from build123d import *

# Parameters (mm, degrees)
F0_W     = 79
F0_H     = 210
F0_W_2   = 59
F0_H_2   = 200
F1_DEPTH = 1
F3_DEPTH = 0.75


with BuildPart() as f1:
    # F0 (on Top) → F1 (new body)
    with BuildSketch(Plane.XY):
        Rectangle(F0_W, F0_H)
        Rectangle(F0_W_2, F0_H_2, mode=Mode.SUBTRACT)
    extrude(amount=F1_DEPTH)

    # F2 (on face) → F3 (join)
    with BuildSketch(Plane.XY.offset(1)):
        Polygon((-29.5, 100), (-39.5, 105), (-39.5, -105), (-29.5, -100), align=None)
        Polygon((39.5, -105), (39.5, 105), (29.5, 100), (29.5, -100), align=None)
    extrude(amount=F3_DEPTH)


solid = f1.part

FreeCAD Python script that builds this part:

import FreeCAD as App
import Part
import Sketcher
Q = App.Units.Quantity

doc = App.newDocument("Part")
params = doc.addObject("Spreadsheet::Sheet", "Params")
for row, (alias, value) in enumerate([
    ("sketch1_width", "79 mm"),
    ("sketch1_width2", "59 mm"),
    ("sketch1_height", "210 mm"),
    ("sketch1_height2", "200 mm"),
    ("pad1_length", "1 mm"),
    ("sketch2_height", "210 mm"),
    ("sketch2_height2", "200 mm"),
    ("pad2_length", "0.75 mm"),
], start=1):
    params.set(f"A{row}", alias)
    params.set(f"B{row}", "=" + value)
    params.setAlias(f"B{row}", alias)

body = doc.addObject("PartDesign::Body", "Body")

sketch1 = body.newObject("Sketcher::SketchObject", "Sketch")
sketch1.AttachmentSupport = (doc.getObject("XY_Plane"), [""])
sketch1.MapMode = "FlatFace"
sketch1.addGeometry(Part.LineSegment(App.Vector(-39.5, 105, 0), App.Vector(-39.5, -105, 0)), False)
sketch1.addGeometry(Part.LineSegment(App.Vector(-39.5, -105, 0), App.Vector(39.5, -105, 0)), False)
sketch1.addGeometry(Part.LineSegment(App.Vector(39.5, -105, 0), App.Vector(39.5, 105, 0)), False)
sketch1.addGeometry(Part.LineSegment(App.Vector(39.5, 105, 0), App.Vector(-39.5, 105, 0)), False)
sketch1.addGeometry(Part.LineSegment(App.Vector(29.5, -100, 0), App.Vector(-29.5, -100, 0)), False)
sketch1.addGeometry(Part.LineSegment(App.Vector(-29.5, -100, 0), App.Vector(-29.5, 100, 0)), False)
sketch1.addGeometry(Part.LineSegment(App.Vector(-29.5, 100, 0), App.Vector(29.5, 100, 0)), False)
sketch1.addGeometry(Part.LineSegment(App.Vector(29.5, 100, 0), App.Vector(29.5, -100, 0)), False)
sketch1.addConstraint(Sketcher.Constraint("Coincident", 0, 2, 1, 1))
sketch1.addConstraint(Sketcher.Constraint("Coincident", 1, 2, 2, 1))
sketch1.addConstraint(Sketcher.Constraint("Coincident", 2, 2, 3, 1))
sketch1.addConstraint(Sketcher.Constraint("Coincident", 3, 2, 0, 1))
sketch1.addConstraint(Sketcher.Constraint("Coincident", 4, 2, 5, 1))
sketch1.addConstraint(Sketcher.Constraint("Coincident", 5, 2, 6, 1))
sketch1.addConstraint(Sketcher.Constraint("Coincident", 6, 2, 7, 1))
sketch1.addConstraint(Sketcher.Constraint("Coincident", 7, 2, 4, 1))
sketch1.addConstraint(Sketcher.Constraint("Vertical", 0))
sketch1.addConstraint(Sketcher.Constraint("Horizontal", 1))
sketch1.addConstraint(Sketcher.Constraint("Vertical", 2))
sketch1.addConstraint(Sketcher.Constraint("Horizontal", 3))
sketch1.addConstraint(Sketcher.Constraint("Horizontal", 4))
sketch1.addConstraint(Sketcher.Constraint("Vertical", 5))
sketch1.addConstraint(Sketcher.Constraint("Horizontal", 6))
sketch1.addConstraint(Sketcher.Constraint("Vertical", 7))
sketch1.addConstraint(Sketcher.Constraint("Symmetric", 0, 2, 2, 2, -1, 1))
sketch1.addConstraint(Sketcher.Constraint("Symmetric", 4, 2, 6, 2, -1, 1))
sketch1.addConstraint(Sketcher.Constraint("DistanceX", 1, 1, 1, 2, Q("79 mm")))
sketch1.addConstraint(Sketcher.Constraint("DistanceX", 4, 2, 4, 1, Q("59 mm")))
sketch1.addConstraint(Sketcher.Constraint("DistanceY", 0, 2, 0, 1, Q("210 mm")))
sketch1.addConstraint(Sketcher.Constraint("DistanceY", 5, 1, 5, 2, Q("200 mm")))
sketch1.setExpression("Constraints[18]", "Params.sketch1_width")
sketch1.setExpression("Constraints[19]", "Params.sketch1_width2")
sketch1.setExpression("Constraints[20]", "Params.sketch1_height")
sketch1.setExpression("Constraints[21]", "Params.sketch1_height2")
pad1 = body.newObject("PartDesign::Pad", "Pad")
pad1.Profile = sketch1
pad1.setExpression("Length", "Params.pad1_length")

sketch2 = body.newObject("Sketcher::SketchObject", "Sketch001")
sketch2.AttachmentSupport = (doc.getObject("XY_Plane"), [""])
sketch2.MapMode = "FlatFace"
sketch2.AttachmentOffset = App.Placement(App.Vector(0, 0, 1), App.Rotation())
sketch2.addGeometry(Part.LineSegment(App.Vector(-29.5, 100, 0), App.Vector(-39.5, 105, 0)), False)
sketch2.addGeometry(Part.LineSegment(App.Vector(-39.5, 105, 0), App.Vector(-39.5, -105, 0)), False)
sketch2.addGeometry(Part.LineSegment(App.Vector(-39.5, -105, 0), App.Vector(-29.5, -100, 0)), False)
sketch2.addGeometry(Part.LineSegment(App.Vector(-29.5, -100, 0), App.Vector(-29.5, 100, 0)), False)
sketch2.addGeometry(Part.LineSegment(App.Vector(39.5, -105, 0), App.Vector(39.5, 105, 0)), False)
sketch2.addGeometry(Part.LineSegment(App.Vector(39.5, 105, 0), App.Vector(29.5, 100, 0)), False)
sketch2.addGeometry(Part.LineSegment(App.Vector(29.5, 100, 0), App.Vector(29.5, -100, 0)), False)
sketch2.addGeometry(Part.LineSegment(App.Vector(29.5, -100, 0), App.Vector(39.5, -105, 0)), False)
sketch2.addConstraint(Sketcher.Constraint("Coincident", 0, 2, 1, 1))
sketch2.addConstraint(Sketcher.Constraint("Coincident", 1, 2, 2, 1))
sketch2.addConstraint(Sketcher.Constraint("Coincident", 2, 2, 3, 1))
sketch2.addConstraint(Sketcher.Constraint("Coincident", 3, 2, 0, 1))
sketch2.addConstraint(Sketcher.Constraint("Coincident", 4, 2, 5, 1))
sketch2.addConstraint(Sketcher.Constraint("Coincident", 5, 2, 6, 1))
sketch2.addConstraint(Sketcher.Constraint("Coincident", 6, 2, 7, 1))
sketch2.addConstraint(Sketcher.Constraint("Coincident", 7, 2, 4, 1))
sketch2.addConstraint(Sketcher.Constraint("Vertical", 1))
sketch2.addConstraint(Sketcher.Constraint("Vertical", 3))
sketch2.addConstraint(Sketcher.Constraint("Vertical", 4))
sketch2.addConstraint(Sketcher.Constraint("Vertical", 6))
sketch2.addConstraint(Sketcher.Constraint("Symmetric", 1, 2, 4, 2, -1, 1))
sketch2.addConstraint(Sketcher.Constraint("Symmetric", 2, 2, 5, 2, -1, 1))
sketch2.addConstraint(Sketcher.Constraint("Parallel", 0, 7))
sketch2.addConstraint(Sketcher.Constraint("Horizontal", 0, 2, 4, 2))
sketch2.addConstraint(Sketcher.Constraint("Horizontal", 3, 2, 5, 2))
sketch2.addConstraint(Sketcher.Constraint("Horizontal", 2, 2, 6, 2))
sketch2.addConstraint(Sketcher.Constraint("DistanceY", 1, 2, 1, 1, Q("210 mm")))
sketch2.addConstraint(Sketcher.Constraint("DistanceY", 3, 1, 3, 2, Q("200 mm")))
sketch2.addConstraint(Sketcher.Constraint("DistanceX", 1, 2, 2, 2, Q("10 mm")))
sketch2.addConstraint(Sketcher.Constraint("DistanceX", 3, 2, 4, 2, Q("69 mm")))
sketch2.setExpression("Constraints[18]", "Params.sketch2_height")
sketch2.setExpression("Constraints[19]", "Params.sketch2_height2")
pad2 = body.newObject("PartDesign::Pad", "Pad001")
pad2.Profile = sketch2
pad2.setExpression("Length", "Params.pad2_length")

doc.recompute()
